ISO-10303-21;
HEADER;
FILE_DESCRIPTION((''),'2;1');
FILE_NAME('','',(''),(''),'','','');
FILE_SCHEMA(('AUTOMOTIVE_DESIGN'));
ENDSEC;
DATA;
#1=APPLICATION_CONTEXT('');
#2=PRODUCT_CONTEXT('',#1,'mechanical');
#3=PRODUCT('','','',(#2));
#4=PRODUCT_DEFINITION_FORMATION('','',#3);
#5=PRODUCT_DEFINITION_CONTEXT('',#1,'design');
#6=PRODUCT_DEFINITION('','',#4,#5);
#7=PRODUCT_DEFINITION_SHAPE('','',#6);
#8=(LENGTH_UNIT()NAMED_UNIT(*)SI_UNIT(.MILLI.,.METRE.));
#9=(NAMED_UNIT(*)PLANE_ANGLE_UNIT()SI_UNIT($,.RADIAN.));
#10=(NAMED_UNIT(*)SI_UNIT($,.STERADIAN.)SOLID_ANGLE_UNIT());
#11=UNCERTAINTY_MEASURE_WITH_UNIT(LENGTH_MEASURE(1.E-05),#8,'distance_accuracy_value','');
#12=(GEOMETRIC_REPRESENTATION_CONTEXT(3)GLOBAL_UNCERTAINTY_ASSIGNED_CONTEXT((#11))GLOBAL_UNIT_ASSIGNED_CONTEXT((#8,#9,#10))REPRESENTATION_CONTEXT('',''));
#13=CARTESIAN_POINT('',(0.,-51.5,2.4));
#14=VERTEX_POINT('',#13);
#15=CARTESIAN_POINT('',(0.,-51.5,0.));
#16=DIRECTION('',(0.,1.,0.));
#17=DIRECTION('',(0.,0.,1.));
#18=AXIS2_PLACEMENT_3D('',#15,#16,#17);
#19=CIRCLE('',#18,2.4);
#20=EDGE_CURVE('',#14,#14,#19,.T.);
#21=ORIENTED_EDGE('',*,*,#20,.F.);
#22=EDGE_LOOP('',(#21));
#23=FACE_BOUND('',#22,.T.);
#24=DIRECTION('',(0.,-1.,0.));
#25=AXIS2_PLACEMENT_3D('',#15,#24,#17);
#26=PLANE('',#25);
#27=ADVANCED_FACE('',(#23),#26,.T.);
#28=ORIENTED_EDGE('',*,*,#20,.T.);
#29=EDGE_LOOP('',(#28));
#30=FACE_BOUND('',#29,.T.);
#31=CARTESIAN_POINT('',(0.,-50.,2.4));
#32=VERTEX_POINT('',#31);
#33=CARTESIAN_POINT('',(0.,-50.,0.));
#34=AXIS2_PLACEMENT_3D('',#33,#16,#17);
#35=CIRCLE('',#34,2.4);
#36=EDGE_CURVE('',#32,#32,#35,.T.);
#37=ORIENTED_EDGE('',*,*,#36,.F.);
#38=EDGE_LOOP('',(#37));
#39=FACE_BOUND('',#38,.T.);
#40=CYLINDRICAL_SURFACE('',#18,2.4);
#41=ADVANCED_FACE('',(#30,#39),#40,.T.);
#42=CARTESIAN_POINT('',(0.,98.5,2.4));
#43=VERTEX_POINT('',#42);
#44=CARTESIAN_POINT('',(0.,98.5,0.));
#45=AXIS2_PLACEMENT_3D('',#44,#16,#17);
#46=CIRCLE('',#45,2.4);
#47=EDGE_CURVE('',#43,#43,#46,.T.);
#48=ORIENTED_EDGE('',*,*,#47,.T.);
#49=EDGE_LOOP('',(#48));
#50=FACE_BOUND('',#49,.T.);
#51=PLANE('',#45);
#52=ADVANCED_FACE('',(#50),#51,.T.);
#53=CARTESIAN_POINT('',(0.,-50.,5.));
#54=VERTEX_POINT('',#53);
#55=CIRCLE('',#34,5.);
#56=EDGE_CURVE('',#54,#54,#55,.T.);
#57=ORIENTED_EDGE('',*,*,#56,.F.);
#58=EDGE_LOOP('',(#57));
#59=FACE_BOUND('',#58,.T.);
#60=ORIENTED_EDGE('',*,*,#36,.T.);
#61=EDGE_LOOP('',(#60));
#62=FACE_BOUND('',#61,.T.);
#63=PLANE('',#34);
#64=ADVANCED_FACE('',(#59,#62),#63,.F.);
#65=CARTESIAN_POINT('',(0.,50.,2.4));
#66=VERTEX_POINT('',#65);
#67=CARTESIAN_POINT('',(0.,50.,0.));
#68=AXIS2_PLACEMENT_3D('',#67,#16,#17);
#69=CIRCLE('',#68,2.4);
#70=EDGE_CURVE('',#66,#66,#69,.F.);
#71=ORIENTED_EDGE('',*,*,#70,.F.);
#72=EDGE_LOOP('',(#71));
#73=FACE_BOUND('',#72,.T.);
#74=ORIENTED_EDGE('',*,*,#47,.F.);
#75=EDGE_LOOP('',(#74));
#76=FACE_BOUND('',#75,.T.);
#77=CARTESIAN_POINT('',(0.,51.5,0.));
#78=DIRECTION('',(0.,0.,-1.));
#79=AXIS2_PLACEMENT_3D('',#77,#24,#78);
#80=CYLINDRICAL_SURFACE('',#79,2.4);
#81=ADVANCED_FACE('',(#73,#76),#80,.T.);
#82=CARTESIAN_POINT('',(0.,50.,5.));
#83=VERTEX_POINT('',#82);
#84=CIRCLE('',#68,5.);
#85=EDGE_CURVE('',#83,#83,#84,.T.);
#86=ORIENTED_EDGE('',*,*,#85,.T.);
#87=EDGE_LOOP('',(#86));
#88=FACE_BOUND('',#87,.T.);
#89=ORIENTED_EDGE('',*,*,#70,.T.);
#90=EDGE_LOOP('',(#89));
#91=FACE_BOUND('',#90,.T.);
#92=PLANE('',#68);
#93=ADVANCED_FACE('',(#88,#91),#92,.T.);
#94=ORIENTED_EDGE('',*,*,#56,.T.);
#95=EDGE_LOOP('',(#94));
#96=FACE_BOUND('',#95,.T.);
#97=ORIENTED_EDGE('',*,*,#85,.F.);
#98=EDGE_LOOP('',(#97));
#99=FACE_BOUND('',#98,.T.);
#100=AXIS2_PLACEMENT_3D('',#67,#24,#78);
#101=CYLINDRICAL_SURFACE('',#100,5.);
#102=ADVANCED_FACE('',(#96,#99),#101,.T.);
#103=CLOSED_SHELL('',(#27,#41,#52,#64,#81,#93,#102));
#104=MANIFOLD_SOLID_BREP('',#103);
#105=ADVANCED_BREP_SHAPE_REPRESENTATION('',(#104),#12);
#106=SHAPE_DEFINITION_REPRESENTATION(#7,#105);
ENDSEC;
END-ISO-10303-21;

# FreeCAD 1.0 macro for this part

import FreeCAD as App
import Part
import Sketcher

doc = App.newDocument("Part")
params = doc.addObject("Spreadsheet::Sheet", "Params")
for row, (alias, value) in enumerate([
    ("sketch1_diameter", "10 mm"),
    ("pad1_length", "100 mm"),
    ("sketch2_diameter", "4.8 mm"),
    ("pad2_length", "3 mm"),
    ("sketch3_diameter", "4.8 mm"),
    ("pad3_length", "47 mm"),
], start=1):
    params.set(f"A{row}", alias)
    params.set(f"B{row}", "=" + value)
    params.setAlias(f"B{row}", alias)

body = doc.addObject("PartDesign::Body", "Body")

# Sketch on XZ plane
sketch1 = doc.addObject("Sketcher::SketchObject", "Sketch")
body.addObject(sketch1)
sketch1.AttachmentSupport = (doc.XZ_Plane, [""])
sketch1.MapMode = "FlatFace"
sketch1.addGeometry(Part.Circle(App.Vector(0, 0, 0), App.Vector(0, 0, 1), 5), False)
sketch1.addConstraint(Sketcher.Constraint("Coincident", 0, 3, -1, 1))
sketch1.addConstraint(Sketcher.Constraint("Diameter", 0, 10.0))
sketch1.setExpression("Constraints[1]", "Params.sketch1_diameter")
pad1 = doc.addObject("PartDesign::Pad", "Pad")
body.addObject(pad1)
pad1.Profile = sketch1
pad1.setExpression("Length", "Params.pad1_length")
pad1.Midplane = True

# Sketch on XZ plane
sketch2 = doc.addObject("Sketcher::SketchObject", "Sketch001")
body.addObject(sketch2)
sketch2.AttachmentSupport = (doc.XZ_Plane, [""])
sketch2.MapMode = "FlatFace"
sketch2.AttachmentOffset = App.Placement(App.Vector(0, 0, -50), App.Rotation())
sketch2.addGeometry(Part.Circle(App.Vector(0, 0, 0), App.Vector(0, 0, 1), 2.4), False)
sketch2.addConstraint(Sketcher.Constraint("Coincident", 0, 3, -1, 1))
sketch2.addConstraint(Sketcher.Constraint("Diameter", 0, 4.8))
sketch2.setExpression("Constraints[1]", "Params.sketch2_diameter")
pad2 = doc.addObject("PartDesign::Pad", "Pad001")
body.addObject(pad2)
pad2.Profile = sketch2
pad2.setExpression("Length", "Params.pad2_length")
pad2.Midplane = True
doc.recompute()

mirrored = doc.addObject("PartDesign::Mirrored", "Mirrored")
body.addObject(mirrored)
mirrored.Originals = [pad2]
mirrored.MirrorPlane = (doc.XZ_Plane, [""])
body.Tip = mirrored

# Sketch on XZ plane
sketch3 = doc.addObject("Sketcher::SketchObject", "Sketch002")
body.addObject(sketch3)
sketch3.AttachmentSupport = (doc.XZ_Plane, [""])
sketch3.MapMode = "FlatFace"
sketch3.AttachmentOffset = App.Placement(App.Vector(0, 0, -51.5), App.Rotation())
sketch3.addGeometry(Part.Circle(App.Vector(0, 0, 0), App.Vector(0, 0, 1), 2.4), False)
sketch3.addConstraint(Sketcher.Constraint("Coincident", 0, 3, -1, 1))
sketch3.addConstraint(Sketcher.Constraint("Diameter", 0, 4.8))
sketch3.setExpression("Constraints[1]", "Params.sketch3_diameter")
pad3 = doc.addObject("PartDesign::Pad", "Pad002")
body.addObject(pad3)
pad3.Profile = sketch3
pad3.setExpression("Length", "Params.pad3_length")
pad3.Reversed = True

doc.recompute()
